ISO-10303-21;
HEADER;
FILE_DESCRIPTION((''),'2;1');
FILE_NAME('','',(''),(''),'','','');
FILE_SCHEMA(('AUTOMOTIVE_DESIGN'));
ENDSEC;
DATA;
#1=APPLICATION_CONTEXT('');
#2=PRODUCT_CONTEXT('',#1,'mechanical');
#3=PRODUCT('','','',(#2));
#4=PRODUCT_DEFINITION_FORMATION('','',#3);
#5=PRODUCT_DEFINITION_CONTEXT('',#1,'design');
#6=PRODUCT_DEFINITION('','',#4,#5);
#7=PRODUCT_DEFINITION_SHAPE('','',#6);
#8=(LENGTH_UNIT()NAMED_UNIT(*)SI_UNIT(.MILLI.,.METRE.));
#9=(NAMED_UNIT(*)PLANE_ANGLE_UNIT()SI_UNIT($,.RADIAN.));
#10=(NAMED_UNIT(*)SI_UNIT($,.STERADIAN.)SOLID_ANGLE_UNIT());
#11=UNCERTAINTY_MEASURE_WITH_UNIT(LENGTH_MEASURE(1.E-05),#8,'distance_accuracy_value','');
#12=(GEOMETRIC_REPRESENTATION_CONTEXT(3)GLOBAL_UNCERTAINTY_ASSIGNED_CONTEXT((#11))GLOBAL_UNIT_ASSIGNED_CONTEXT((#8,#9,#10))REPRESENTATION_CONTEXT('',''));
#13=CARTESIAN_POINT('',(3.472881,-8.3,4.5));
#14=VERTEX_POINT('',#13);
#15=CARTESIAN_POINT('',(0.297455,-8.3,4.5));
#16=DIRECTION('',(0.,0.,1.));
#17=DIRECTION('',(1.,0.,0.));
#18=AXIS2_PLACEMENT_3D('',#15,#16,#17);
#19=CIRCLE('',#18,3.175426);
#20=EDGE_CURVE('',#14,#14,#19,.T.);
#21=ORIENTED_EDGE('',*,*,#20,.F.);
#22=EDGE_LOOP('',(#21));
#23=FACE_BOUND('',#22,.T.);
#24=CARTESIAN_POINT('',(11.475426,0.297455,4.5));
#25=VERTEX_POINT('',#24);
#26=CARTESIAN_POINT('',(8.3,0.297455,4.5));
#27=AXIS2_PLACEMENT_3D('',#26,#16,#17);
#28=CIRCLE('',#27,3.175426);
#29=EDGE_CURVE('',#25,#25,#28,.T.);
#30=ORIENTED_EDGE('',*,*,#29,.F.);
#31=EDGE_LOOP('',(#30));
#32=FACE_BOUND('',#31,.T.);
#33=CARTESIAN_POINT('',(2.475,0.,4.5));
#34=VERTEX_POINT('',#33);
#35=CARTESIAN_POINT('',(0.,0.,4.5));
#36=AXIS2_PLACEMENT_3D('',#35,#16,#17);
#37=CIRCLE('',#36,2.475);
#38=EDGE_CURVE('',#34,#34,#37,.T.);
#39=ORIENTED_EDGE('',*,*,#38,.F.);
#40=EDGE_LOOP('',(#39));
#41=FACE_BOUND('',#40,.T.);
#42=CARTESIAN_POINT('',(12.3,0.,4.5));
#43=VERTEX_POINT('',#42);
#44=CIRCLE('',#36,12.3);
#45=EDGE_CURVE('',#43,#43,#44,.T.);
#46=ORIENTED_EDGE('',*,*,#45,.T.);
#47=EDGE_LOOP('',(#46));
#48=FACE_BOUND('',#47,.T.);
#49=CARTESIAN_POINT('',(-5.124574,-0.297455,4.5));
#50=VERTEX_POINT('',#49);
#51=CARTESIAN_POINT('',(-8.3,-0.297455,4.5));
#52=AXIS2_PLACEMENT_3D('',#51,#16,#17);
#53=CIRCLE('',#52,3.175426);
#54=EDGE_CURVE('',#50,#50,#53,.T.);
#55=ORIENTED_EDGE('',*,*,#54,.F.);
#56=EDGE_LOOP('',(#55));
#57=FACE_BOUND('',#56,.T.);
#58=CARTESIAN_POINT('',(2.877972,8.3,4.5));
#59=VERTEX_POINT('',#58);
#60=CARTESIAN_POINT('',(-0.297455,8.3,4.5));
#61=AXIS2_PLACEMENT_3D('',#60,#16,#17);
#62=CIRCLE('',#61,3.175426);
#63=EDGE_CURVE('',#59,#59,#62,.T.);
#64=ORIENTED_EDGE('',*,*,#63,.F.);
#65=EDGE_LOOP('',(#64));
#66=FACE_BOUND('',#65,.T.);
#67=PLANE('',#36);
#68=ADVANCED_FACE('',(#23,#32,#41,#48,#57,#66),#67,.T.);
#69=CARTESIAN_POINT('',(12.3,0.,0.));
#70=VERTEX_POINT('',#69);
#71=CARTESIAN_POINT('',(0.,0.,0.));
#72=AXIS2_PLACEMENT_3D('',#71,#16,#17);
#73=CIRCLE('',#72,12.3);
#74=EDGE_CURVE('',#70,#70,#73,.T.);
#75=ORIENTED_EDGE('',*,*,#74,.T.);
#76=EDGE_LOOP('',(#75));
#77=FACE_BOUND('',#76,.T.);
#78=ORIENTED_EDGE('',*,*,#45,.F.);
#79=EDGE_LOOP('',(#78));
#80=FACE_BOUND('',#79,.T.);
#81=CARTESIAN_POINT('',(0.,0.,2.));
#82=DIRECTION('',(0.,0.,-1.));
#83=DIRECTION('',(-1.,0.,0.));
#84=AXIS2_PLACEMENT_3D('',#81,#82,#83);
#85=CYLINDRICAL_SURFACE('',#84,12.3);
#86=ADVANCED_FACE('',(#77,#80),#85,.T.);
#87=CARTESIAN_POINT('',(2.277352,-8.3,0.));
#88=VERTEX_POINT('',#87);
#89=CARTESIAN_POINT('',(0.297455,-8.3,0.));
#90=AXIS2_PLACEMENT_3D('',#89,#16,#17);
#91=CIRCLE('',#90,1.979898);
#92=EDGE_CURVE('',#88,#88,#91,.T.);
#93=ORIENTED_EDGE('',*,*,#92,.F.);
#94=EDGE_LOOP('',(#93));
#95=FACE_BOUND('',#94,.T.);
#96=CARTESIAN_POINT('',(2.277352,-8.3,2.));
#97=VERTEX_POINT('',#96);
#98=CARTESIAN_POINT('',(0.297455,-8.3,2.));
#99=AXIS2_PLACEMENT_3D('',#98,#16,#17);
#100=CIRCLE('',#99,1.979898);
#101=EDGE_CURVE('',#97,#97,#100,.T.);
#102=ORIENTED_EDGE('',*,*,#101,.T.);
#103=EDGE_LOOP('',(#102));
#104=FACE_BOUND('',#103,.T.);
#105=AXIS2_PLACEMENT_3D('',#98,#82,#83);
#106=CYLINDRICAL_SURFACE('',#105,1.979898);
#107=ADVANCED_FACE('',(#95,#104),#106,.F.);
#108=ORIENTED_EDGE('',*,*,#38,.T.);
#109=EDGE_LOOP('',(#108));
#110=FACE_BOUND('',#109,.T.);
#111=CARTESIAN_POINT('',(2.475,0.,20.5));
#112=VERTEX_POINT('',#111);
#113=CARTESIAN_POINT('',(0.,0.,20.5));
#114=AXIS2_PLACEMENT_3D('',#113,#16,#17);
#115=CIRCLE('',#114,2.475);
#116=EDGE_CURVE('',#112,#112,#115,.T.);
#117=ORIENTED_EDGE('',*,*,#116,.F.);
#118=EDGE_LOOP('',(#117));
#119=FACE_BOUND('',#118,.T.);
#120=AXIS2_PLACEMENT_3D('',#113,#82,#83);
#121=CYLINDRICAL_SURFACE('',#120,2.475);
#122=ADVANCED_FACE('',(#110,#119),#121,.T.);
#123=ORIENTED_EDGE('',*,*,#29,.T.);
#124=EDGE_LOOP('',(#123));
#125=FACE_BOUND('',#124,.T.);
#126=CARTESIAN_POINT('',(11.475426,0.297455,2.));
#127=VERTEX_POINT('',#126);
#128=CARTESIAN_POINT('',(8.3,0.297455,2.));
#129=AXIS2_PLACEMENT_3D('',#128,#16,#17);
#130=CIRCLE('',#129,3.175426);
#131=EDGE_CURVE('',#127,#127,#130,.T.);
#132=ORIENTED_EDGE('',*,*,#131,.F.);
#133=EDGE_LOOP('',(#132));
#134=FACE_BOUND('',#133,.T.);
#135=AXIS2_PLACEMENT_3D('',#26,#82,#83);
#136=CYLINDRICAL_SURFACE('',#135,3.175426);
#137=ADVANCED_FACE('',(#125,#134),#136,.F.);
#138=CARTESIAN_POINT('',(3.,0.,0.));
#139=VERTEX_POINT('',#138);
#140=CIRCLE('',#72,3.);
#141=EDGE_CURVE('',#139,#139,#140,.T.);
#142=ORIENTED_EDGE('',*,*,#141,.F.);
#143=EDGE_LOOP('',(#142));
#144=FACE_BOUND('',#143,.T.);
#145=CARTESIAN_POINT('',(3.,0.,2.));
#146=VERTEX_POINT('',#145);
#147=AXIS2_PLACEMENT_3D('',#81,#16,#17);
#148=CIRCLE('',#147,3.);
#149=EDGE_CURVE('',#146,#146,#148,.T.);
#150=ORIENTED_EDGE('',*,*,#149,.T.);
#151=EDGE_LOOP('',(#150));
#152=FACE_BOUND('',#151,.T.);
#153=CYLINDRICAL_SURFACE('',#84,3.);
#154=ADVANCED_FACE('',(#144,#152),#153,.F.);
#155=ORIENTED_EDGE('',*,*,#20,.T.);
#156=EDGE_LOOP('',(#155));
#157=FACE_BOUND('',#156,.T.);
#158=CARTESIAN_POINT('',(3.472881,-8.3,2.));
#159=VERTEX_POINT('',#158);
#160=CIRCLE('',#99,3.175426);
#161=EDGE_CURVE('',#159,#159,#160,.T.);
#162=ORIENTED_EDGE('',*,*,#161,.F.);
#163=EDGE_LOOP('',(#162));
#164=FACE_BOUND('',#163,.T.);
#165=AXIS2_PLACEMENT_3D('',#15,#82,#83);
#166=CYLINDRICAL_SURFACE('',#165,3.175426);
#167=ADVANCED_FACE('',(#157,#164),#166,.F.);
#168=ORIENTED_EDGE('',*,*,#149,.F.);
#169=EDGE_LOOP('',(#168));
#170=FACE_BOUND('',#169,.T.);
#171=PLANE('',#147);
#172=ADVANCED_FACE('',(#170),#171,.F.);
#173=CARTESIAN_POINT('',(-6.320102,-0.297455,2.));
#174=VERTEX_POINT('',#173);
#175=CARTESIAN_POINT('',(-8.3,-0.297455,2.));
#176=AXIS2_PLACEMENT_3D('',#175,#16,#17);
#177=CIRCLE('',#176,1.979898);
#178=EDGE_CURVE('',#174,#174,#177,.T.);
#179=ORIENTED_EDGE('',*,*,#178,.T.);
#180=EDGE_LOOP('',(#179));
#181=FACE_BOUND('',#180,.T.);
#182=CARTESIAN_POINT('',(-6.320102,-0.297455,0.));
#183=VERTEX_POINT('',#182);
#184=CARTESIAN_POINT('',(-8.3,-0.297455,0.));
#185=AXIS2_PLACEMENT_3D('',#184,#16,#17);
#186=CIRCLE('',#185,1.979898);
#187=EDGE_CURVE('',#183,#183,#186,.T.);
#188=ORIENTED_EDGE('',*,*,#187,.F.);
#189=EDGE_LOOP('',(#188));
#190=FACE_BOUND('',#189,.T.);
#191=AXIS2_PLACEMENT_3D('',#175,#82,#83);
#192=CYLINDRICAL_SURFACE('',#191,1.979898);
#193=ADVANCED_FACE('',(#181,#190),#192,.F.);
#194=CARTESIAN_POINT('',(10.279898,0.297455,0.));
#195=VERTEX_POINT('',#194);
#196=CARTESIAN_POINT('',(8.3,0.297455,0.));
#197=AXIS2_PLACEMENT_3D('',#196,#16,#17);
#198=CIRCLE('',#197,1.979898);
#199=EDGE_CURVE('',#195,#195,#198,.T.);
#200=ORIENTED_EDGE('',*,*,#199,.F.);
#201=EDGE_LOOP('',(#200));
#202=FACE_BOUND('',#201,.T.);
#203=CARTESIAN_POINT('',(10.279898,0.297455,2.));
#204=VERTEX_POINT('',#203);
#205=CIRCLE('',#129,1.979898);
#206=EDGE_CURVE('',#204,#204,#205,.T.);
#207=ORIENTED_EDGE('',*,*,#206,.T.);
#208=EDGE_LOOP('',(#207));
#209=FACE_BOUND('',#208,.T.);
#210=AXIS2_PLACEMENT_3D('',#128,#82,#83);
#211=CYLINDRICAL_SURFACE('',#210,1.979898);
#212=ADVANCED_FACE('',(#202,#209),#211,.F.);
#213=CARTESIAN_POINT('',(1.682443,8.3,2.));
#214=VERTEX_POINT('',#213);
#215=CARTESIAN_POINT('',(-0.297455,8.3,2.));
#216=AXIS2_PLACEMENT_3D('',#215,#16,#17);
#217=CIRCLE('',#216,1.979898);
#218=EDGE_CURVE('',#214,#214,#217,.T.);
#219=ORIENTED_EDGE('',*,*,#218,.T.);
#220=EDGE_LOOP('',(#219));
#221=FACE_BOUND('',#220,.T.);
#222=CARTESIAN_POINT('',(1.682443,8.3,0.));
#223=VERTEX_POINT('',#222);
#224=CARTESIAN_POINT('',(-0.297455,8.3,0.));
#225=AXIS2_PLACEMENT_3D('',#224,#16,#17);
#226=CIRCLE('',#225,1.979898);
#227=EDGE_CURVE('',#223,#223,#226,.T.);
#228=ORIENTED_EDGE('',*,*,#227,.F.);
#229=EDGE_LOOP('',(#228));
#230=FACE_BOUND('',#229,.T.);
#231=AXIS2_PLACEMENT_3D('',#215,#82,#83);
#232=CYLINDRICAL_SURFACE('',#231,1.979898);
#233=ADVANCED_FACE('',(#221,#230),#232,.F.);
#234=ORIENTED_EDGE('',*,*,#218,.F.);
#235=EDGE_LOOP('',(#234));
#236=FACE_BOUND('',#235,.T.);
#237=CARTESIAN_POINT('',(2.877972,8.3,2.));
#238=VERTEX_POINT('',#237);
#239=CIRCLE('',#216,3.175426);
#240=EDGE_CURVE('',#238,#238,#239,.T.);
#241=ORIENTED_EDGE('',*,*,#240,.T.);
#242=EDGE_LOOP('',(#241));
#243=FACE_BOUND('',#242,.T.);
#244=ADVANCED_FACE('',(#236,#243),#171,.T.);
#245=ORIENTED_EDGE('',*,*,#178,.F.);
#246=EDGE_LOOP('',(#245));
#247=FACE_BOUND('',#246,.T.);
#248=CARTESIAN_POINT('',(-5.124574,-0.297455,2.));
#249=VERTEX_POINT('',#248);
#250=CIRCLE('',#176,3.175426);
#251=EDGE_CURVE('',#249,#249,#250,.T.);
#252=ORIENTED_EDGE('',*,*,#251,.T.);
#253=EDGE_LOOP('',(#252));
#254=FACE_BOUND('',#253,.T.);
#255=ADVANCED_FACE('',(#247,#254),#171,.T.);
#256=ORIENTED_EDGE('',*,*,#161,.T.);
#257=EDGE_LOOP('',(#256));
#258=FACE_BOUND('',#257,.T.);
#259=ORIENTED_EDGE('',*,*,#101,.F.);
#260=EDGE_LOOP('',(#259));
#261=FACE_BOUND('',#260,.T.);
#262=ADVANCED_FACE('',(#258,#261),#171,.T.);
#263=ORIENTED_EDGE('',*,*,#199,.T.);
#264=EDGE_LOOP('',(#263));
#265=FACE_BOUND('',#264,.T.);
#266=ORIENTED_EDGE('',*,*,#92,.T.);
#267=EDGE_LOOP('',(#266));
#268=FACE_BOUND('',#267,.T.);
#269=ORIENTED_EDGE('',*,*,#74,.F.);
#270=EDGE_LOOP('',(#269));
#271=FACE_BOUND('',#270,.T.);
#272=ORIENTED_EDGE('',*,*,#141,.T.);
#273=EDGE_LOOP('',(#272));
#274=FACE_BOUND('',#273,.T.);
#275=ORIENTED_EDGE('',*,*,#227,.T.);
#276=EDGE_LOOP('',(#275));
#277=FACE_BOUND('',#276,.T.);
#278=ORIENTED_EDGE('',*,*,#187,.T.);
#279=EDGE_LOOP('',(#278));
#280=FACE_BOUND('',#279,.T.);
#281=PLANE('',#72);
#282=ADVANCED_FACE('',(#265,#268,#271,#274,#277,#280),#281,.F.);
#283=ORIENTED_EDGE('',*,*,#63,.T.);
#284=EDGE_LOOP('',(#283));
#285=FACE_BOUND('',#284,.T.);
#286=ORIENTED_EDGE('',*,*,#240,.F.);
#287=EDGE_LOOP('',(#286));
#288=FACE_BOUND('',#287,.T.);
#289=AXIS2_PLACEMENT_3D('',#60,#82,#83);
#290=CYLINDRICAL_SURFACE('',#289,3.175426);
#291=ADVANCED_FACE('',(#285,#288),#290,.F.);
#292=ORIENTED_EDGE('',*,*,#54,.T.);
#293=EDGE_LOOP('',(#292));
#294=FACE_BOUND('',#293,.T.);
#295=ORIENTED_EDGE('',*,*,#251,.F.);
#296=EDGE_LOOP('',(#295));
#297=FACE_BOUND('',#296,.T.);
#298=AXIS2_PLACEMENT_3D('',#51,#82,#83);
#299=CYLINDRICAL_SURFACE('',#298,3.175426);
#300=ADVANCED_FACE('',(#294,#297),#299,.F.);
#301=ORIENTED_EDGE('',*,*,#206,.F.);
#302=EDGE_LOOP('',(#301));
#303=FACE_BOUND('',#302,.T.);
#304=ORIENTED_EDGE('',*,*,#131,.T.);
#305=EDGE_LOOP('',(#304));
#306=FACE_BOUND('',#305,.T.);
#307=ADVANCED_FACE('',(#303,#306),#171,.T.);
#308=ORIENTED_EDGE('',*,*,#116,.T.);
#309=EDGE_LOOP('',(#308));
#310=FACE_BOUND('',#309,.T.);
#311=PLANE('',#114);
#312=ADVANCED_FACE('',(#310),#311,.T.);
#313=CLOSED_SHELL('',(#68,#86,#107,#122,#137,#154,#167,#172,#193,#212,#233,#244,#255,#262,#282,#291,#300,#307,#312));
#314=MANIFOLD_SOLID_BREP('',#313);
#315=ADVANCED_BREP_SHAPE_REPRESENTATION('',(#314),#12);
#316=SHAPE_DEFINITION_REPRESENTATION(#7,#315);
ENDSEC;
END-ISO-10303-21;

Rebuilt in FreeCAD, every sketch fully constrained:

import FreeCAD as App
import Part
import Sketcher

V = App.Vector

doc = App.newDocument("Part")
params = doc.addObject("Spreadsheet::Sheet", "Params")
for row, (alias, value) in enumerate([
    ("sketch1_diameter", "6 mm"),
    ("sketch1_diameter2", "24.6 mm"),
    ("pad1_length", "2 mm"),
    ("sketch2_diameter", "24.6 mm"),
    ("pad2_length", "2.5 mm"),
    ("sketch3_diameter", "4.95 mm"),
    ("pad3_length", "16 mm"),
], start=1):
    params.set(f"A{row}", alias)
    params.set(f"B{row}", "=" + value)
    params.setAlias(f"B{row}", alias)

body = doc.addObject("PartDesign::Body", "Body")

sketch1 = doc.addObject("Sketcher::SketchObject", "Sketch")
body.addObject(sketch1)
sketch1.AttachmentSupport = (doc.XY_Plane, [""])
sketch1.MapMode = "FlatFace"
sketch1.addGeometry([
    Part.Circle(V(0, 0, 0), V(0, 0, 1), 12.3),
    Part.Circle(V(-8.3, -0.3, 0), V(0, 0, 1), 2),
    Part.Circle(V(0.3, -8.3, 0), V(0, 0, 1), 2),
    Part.Circle(V(0, 0, 0), V(0, 0, 1), 3),
    Part.Circle(V(-0.3, 8.3, 0), V(0, 0, 1), 2),
    Part.Circle(V(8.3, 0.3, 0), V(0, 0, 1), 2),
], False)
sketch1.addConstraint([
    Sketcher.Constraint("Coincident", 0, 3, -1, 1),
    Sketcher.Constraint("Coincident", 3, 3, -1, 1),
    Sketcher.Constraint("Equal", 1, 2),
    Sketcher.Constraint("Equal", 2, 4),
    Sketcher.Constraint("Equal", 4, 5),
    Sketcher.Constraint("Symmetric", 2, 3, 4, 3, -1, 1),
    Sketcher.Constraint("Symmetric", 1, 3, 5, 3, -1, 1),
    Sketcher.Constraint("Diameter", 3, 6.0),
    Sketcher.Constraint("Diameter", 0, 24.6),
    Sketcher.Constraint("DistanceX", 1, 3, -1, 1, 8.3),
    Sketcher.Constraint("DistanceY", 2, 3, -1, 1, 8.3),
    Sketcher.Constraint("Diameter", 1, 3.959795),
    Sketcher.Constraint("DistanceX", 4, 3, 2, 3, 0.59491),
    Sketcher.Constraint("DistanceY", 1, 3, 5, 3, 0.59491),
])
sketch1.setExpression("Constraints[7]", "Params.sketch1_diameter")
sketch1.setExpression("Constraints[8]", "Params.sketch1_diameter2")
pad1 = doc.addObject("PartDesign::Pad", "Pad")
body.addObject(pad1)
pad1.Profile = sketch1
pad1.setExpression("Length", "Params.pad1_length")

sketch2 = doc.addObject("Sketcher::SketchObject", "Sketch001")
body.addObject(sketch2)
sketch2.AttachmentSupport = (doc.XY_Plane, [""])
sketch2.MapMode = "FlatFace"
sketch2.AttachmentOffset = App.Placement(V(0, 0, 2), App.Rotation())
sketch2.addGeometry([
    Part.Circle(V(0, 0, 0), V(0, 0, 1), 12.3),
    Part.Circle(V(-8.3, -0.3, 0), V(0, 0, 1), 3.2),
    Part.Circle(V(0.3, -8.3, 0), V(0, 0, 1), 3.2),
    Part.Circle(V(-0.3, 8.3, 0), V(0, 0, 1), 3.2),
    Part.Circle(V(8.3, 0.3, 0), V(0, 0, 1), 3.2),
], False)
sketch2.addConstraint([
    Sketcher.Constraint("Coincident", 0, 3, -1, 1),
    Sketcher.Constraint("Equal", 1, 2),
    Sketcher.Constraint("Equal", 2, 3),
    Sketcher.Constraint("Equal", 3, 4),
    Sketcher.Constraint("Symmetric", 2, 3, 3, 3, -1, 1),
    Sketcher.Constraint("Symmetric", 1, 3, 4, 3, -1, 1),
    Sketcher.Constraint("Diameter", 0, 24.6),
    Sketcher.Constraint("DistanceX", 1, 3, -1, 1, 8.3),
    Sketcher.Constraint("DistanceY", 2, 3, -1, 1, 8.3),
    Sketcher.Constraint("Diameter", 1, 6.350853),
    Sketcher.Constraint("DistanceX", 3, 3, 2, 3, 0.59491),
    Sketcher.Constraint("DistanceY", 1, 3, 4, 3, 0.59491),
])
sketch2.setExpression("Constraints[6]", "Params.sketch2_diameter")
pad2 = doc.addObject("PartDesign::Pad", "Pad001")
body.addObject(pad2)
pad2.Profile = sketch2
pad2.setExpression("Length", "Params.pad2_length")

sketch3 = doc.addObject("Sketcher::SketchObject", "Sketch002")
body.addObject(sketch3)
sketch3.AttachmentSupport = (doc.XY_Plane, [""])
sketch3.MapMode = "FlatFace"
sketch3.AttachmentOffset = App.Placement(V(0, 0, 4.5), App.Rotation())
sketch3.addGeometry(Part.Circle(V(0, 0, 0), V(0, 0, 1), 2.5), False)
sketch3.addConstraint([
    Sketcher.Constraint("Coincident", 0, 3, -1, 1),
    Sketcher.Constraint("Diameter", 0, 4.95),
])
sketch3.setExpression("Constraints[1]", "Params.sketch3_diameter")
pad3 = doc.addObject("PartDesign::Pad", "Pad002")
body.addObject(pad3)
pad3.Profile = sketch3
pad3.setExpression("Length", "Params.pad3_length")

doc.recompute()
